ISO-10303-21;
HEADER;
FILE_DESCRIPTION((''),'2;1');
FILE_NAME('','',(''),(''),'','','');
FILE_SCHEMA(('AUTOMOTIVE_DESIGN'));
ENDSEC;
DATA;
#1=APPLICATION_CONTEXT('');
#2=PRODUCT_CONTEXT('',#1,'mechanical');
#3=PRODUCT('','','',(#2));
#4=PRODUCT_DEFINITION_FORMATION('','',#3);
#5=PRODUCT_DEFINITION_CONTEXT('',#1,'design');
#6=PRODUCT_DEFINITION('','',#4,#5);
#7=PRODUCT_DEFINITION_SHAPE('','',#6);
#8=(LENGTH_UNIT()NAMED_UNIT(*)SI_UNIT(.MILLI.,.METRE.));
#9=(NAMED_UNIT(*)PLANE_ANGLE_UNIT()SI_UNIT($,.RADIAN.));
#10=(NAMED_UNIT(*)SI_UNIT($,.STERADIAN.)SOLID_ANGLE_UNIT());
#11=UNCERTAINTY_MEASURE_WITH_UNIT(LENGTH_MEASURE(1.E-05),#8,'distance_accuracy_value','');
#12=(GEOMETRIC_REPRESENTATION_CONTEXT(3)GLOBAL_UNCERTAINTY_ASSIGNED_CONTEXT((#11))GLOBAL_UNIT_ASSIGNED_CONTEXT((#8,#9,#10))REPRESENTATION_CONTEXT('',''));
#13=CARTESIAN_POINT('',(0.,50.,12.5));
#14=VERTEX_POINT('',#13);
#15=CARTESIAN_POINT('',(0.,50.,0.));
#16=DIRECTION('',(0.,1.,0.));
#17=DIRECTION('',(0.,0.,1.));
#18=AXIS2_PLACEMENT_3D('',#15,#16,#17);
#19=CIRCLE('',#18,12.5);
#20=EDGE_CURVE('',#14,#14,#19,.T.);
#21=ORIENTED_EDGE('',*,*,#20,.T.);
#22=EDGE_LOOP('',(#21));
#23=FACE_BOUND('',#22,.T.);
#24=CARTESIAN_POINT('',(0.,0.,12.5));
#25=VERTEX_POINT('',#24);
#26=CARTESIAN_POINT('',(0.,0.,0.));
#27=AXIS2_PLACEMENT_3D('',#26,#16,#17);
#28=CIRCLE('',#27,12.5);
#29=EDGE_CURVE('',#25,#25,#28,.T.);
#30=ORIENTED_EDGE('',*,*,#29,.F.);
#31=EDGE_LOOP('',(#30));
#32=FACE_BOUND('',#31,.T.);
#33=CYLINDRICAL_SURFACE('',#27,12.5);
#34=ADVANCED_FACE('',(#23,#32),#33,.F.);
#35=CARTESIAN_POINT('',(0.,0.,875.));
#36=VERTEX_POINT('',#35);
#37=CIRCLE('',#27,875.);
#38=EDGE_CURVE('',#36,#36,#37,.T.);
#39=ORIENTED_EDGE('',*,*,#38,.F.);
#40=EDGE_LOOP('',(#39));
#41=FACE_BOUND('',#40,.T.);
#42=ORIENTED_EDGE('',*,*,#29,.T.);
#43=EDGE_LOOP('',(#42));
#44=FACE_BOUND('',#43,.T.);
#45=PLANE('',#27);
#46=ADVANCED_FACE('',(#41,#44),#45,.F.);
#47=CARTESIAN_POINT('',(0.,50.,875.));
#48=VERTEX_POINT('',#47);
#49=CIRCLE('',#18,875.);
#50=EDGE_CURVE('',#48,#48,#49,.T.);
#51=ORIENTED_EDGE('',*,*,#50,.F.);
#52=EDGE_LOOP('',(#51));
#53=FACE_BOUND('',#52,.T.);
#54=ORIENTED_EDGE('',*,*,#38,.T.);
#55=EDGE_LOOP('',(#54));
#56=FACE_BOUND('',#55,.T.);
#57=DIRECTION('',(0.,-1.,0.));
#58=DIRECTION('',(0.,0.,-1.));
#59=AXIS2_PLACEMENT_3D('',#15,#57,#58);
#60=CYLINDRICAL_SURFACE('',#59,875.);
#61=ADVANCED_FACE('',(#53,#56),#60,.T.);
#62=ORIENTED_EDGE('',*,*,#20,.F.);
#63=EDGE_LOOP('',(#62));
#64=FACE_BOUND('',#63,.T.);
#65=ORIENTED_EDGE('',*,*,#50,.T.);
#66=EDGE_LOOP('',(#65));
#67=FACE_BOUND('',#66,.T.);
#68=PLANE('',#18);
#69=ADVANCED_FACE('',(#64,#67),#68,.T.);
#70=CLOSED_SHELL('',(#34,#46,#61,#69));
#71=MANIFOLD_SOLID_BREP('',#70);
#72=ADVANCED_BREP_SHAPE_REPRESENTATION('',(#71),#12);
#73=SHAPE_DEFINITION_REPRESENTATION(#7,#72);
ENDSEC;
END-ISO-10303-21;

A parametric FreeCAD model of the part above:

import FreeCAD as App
import Part
import Sketcher
from FreeCAD import Vector
Q = App.Units.Quantity

doc = App.newDocument("Part")
body = doc.addObject("PartDesign::Body", "Body")

sketch1 = body.newObject("Sketcher::SketchObject", "Sketch")
sketch1.AttachmentSupport = (doc.getObject("XZ_Plane"), [""])
sketch1.MapMode = "FlatFace"
sketch1.addGeometry(Part.Circle(Vector(0, 0, 0), Vector(0, 0, 1), 875), False)
sketch1.addConstraint([
    Sketcher.Constraint("Coincident", 0, 3, -1, 1),
    Sketcher.Constraint("Diameter", 0, Q("1750 mm")),
])
pad1 = body.newObject("PartDesign::Pad", "Pad")
pad1.Profile = sketch1
pad1.Length = 50
pad1.Reversed = True

sketch2 = body.newObject("Sketcher::SketchObject", "Sketch001")
sketch2.AttachmentSupport = (doc.getObject("XZ_Plane"), [""])
sketch2.MapMode = "FlatFace"
sketch2.AttachmentOffset = App.Placement(Vector(0, 0, -50), App.Rotation())
sketch2.addGeometry(Part.Circle(Vector(0, 0, 0), Vector(0, 0, 1), 12.5), False)
sketch2.addConstraint([
    Sketcher.Constraint("Coincident", 0, 3, -1, 1),
    Sketcher.Constraint("Diameter", 0, Q("25 mm")),
])
pocket1 = body.newObject("PartDesign::Pocket", "Pocket")
pocket1.Profile = sketch2
pocket1.Type = "ThroughAll"
pocket1.Reversed = True

doc.recompute()
